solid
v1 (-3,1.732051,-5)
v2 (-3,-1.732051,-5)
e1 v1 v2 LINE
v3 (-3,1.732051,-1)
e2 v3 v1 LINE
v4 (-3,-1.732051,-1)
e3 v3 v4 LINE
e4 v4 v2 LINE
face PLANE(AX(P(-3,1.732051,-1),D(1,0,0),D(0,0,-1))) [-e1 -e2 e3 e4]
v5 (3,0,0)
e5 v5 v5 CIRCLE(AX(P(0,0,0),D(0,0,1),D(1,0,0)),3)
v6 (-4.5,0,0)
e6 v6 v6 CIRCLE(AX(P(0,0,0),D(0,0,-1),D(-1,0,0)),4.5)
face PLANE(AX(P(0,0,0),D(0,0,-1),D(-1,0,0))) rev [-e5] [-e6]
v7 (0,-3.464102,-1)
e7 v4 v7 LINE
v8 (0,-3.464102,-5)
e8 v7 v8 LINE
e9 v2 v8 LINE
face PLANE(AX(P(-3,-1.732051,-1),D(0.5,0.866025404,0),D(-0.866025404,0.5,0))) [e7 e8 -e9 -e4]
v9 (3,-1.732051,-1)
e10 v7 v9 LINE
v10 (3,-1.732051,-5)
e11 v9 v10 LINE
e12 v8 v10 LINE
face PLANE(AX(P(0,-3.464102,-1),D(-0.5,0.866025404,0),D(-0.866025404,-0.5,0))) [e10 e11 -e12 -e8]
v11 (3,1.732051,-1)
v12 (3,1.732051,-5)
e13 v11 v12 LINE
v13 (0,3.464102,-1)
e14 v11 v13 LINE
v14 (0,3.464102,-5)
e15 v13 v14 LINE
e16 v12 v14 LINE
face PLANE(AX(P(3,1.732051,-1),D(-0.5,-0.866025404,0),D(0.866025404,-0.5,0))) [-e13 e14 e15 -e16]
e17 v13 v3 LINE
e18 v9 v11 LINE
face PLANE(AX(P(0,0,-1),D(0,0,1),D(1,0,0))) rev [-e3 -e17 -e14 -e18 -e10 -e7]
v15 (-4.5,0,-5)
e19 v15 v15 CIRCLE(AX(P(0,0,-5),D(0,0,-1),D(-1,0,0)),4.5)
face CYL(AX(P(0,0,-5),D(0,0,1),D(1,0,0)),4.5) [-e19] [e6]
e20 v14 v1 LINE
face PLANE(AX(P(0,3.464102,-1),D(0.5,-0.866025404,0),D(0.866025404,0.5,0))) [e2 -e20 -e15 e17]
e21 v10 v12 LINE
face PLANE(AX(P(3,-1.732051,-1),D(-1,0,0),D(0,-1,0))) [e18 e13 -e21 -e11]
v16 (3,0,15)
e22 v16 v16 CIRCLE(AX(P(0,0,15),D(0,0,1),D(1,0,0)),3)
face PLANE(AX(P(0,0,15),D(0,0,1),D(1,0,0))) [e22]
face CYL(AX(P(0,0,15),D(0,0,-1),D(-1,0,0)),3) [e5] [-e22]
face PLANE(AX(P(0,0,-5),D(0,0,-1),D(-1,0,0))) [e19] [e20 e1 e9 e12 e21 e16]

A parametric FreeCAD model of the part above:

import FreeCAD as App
import Part
import Sketcher

V = App.Vector
Q = App.Units.Quantity

doc = App.newDocument("Part")
body = doc.addObject("PartDesign::Body", "Body")

sketch1 = doc.addObject("Sketcher::SketchObject", "Sketch")
body.addObject(sketch1)
sketch1.AttachmentSupport = (doc.XY_Plane, [""])
sketch1.MapMode = "FlatFace"
sketch1.addGeometry(Part.Circle(V(0, 0, 0), V(0, 0, 1), 3), False)
sketch1.addConstraint([
    Sketcher.Constraint("Coincident", 0, 3, -1, 1),
    Sketcher.Constraint("Diameter", 0, 6.0),
])
pad1 = doc.addObject("PartDesign::Pad", "Pad")
body.addObject(pad1)
pad1.Profile = sketch1
pad1.Length = 15

sketch2 = doc.addObject("Sketcher::SketchObject", "Sketch001")
body.addObject(sketch2)
sketch2.AttachmentSupport = (doc.XY_Plane, [""])
sketch2.MapMode = "FlatFace"
sketch2.addGeometry(Part.Circle(V(0, 0, 0), V(0, 0, 1), 4.5), False)
sketch2.addConstraint([
    Sketcher.Constraint("Coincident", 0, 3, -1, 1),
    Sketcher.Constraint("Diameter", 0, 9.0),
])
pad2 = doc.addObject("PartDesign::Pad", "Pad001")
body.addObject(pad2)
pad2.Profile = sketch2
pad2.Length = 5
pad2.Reversed = True

sketch3 = doc.addObject("Sketcher::SketchObject", "Sketch002")
body.addObject(sketch3)
sketch3.AttachmentSupport = (doc.XY_Plane, [""])
sketch3.MapMode = "FlatFace"
sketch3.AttachmentOffset = App.Placement(V(0, 0, -5), App.Rotation())
sketch3.addGeometry([
    Part.LineSegment(V(-3, 1.7, 0), V(0, 0, 0)),
    Part.LineSegment(V(0, 0, 0), V(-3, -1.7, 0)),
    Part.LineSegment(V(-3, -1.7, 0), V(-3, 1.7, 0)),
], False)
sketch3.addConstraint([
    Sketcher.Constraint("Coincident", 0, 2, 1, 1),
    Sketcher.Constraint("Coincident", 1, 2, 2, 1),
    Sketcher.Constraint("Coincident", 2, 2, 0, 1),
    Sketcher.Constraint("Vertical", 2),
    Sketcher.Constraint("Coincident", 0, 2, -1, 1),
    Sketcher.Constraint("Equal", 0, 1),
    Sketcher.Constraint("Angle", 0, Q("-30 deg")),
    Sketcher.Constraint("DistanceX", 1, 2, -1, 1, 3.0),
])
pocket1 = doc.addObject("PartDesign::Pocket", "Pocket")
body.addObject(pocket1)
pocket1.Profile = sketch3
pocket1.Length = 4
pocket1.Reversed = True
doc.recompute()

polarpattern = doc.addObject("PartDesign::PolarPattern", "PolarPattern")
body.addObject(polarpattern)
polarpattern.Originals = [pocket1]
polarpattern.Axis = (doc.Z_Axis, [""])
polarpattern.Angle = 360
polarpattern.Occurrences = 6
body.Tip = polarpattern

doc.recompute()
